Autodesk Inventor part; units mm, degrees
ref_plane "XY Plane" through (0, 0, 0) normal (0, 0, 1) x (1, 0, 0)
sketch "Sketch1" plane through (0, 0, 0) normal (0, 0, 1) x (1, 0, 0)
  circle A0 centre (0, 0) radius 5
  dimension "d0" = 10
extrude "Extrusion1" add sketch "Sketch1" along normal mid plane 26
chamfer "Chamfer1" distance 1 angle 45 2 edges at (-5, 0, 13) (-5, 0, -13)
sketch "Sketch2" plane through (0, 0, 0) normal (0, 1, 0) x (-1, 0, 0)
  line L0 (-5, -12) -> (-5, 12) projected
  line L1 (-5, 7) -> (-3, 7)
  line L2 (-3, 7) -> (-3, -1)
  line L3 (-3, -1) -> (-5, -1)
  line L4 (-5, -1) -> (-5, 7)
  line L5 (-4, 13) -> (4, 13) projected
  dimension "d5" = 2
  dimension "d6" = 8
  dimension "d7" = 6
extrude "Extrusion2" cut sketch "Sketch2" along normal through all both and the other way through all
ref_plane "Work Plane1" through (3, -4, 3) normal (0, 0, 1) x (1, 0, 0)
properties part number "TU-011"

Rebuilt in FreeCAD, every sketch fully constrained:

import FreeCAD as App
import Part
import Sketcher
from FreeCAD import Vector
Q = App.Units.Quantity


def edges_at(feature, points):
    """Names of the edges that pass closest to the given points."""
    edges = feature.Shape.Edges
    near = lambda p: min(range(len(edges)), key=lambda i: edges[i].distToShape(Part.Vertex(*p))[0])
    return sorted({f"Edge{near(p) + 1}" for p in points})


def add_polygon(sketch, points):
    """Adds a closed chain of lines whose ends are joined by coincident constraints."""
    first, n = sketch.GeometryCount, len(points)
    for a, b in zip(points, points[1:] + points[:1]):
        sketch.addGeometry(Part.LineSegment(App.Vector(*a, 0), App.Vector(*b, 0)), False)
    for i in range(n):
        sketch.addConstraint(Sketcher.Constraint("Coincident", first + i, 2, first + (i + 1) % n, 1))

doc = App.newDocument("Part")
params = doc.addObject("Spreadsheet::Sheet", "Params")
for row, (alias, value) in enumerate([
    ("sketch1_diameter", "10 mm"),
    ("pad1_length", "26 mm"),
    ("chamfer_size", "1 mm"),
    ("sketch2_width", "2 mm"),
    ("sketch2_height", "8 mm"),
], start=1):
    params.set(f"A{row}", alias)
    params.set(f"B{row}", "=" + value)
    params.setAlias(f"B{row}", alias)

body = doc.addObject("PartDesign::Body", "Body")

# Sketch on XY plane
sketch1 = body.newObject("Sketcher::SketchObject", "Sketch")
sketch1.AttachmentSupport = (doc.getObject("XY_Plane"), [""])
sketch1.MapMode = "FlatFace"
sketch1.addGeometry(Part.Circle(Vector(0, 0, 0), Vector(0, 0, 1), 5), False)
sketch1.addConstraint(Sketcher.Constraint("Coincident", 0, 3, -1, 1))
sketch1.addConstraint(Sketcher.Constraint("Diameter", 0, Q("10 mm")))
sketch1.setExpression("Constraints[1]", "Params.sketch1_diameter")
pad1 = body.newObject("PartDesign::Pad", "Pad")
pad1.Profile = sketch1
pad1.setExpression("Length", "Params.pad1_length")
pad1.Midplane = True
doc.recompute()

chamfer = body.newObject("PartDesign::Chamfer", "Chamfer")
chamfer.Base = (pad1, edges_at(pad1, [(-5, 0, 13), (-5, 0, -13)]))
chamfer.setExpression("Size", "Params.chamfer_size")

# Sketch on XZ plane
sketch2 = body.newObject("Sketcher::SketchObject", "Sketch001")
sketch2.AttachmentSupport = (doc.getObject("XZ_Plane"), [""])
sketch2.MapMode = "FlatFace"
add_polygon(sketch2, [(5, 7), (5, -1), (3, -1), (3, 7)])  # lines 0-3
sketch2.addConstraint(Sketcher.Constraint("Vertical", 0))
sketch2.addConstraint(Sketcher.Constraint("Horizontal", 1))
sketch2.addConstraint(Sketcher.Constraint("Vertical", 2))
sketch2.addConstraint(Sketcher.Constraint("Horizontal", 3))
sketch2.addConstraint(Sketcher.Constraint("DistanceX", 1, 2, 1, 1, Q("2 mm")))
sketch2.addConstraint(Sketcher.Constraint("DistanceY", 0, 2, 0, 1, Q("8 mm")))
sketch2.addConstraint(Sketcher.Constraint("DistanceX", -1, 1, 0, 2, Q("5 mm")))
sketch2.addConstraint(Sketcher.Constraint("DistanceY", 0, 2, -1, 1, Q("1 mm")))
sketch2.setExpression("Constraints[8]", "Params.sketch2_width")
sketch2.setExpression("Constraints[9]", "Params.sketch2_height")
pocket1 = body.newObject("PartDesign::Pocket", "Pocket")
pocket1.Profile = sketch2
pocket1.Type = "ThroughAll"
pocket1.Midplane = True

doc.recompute()
